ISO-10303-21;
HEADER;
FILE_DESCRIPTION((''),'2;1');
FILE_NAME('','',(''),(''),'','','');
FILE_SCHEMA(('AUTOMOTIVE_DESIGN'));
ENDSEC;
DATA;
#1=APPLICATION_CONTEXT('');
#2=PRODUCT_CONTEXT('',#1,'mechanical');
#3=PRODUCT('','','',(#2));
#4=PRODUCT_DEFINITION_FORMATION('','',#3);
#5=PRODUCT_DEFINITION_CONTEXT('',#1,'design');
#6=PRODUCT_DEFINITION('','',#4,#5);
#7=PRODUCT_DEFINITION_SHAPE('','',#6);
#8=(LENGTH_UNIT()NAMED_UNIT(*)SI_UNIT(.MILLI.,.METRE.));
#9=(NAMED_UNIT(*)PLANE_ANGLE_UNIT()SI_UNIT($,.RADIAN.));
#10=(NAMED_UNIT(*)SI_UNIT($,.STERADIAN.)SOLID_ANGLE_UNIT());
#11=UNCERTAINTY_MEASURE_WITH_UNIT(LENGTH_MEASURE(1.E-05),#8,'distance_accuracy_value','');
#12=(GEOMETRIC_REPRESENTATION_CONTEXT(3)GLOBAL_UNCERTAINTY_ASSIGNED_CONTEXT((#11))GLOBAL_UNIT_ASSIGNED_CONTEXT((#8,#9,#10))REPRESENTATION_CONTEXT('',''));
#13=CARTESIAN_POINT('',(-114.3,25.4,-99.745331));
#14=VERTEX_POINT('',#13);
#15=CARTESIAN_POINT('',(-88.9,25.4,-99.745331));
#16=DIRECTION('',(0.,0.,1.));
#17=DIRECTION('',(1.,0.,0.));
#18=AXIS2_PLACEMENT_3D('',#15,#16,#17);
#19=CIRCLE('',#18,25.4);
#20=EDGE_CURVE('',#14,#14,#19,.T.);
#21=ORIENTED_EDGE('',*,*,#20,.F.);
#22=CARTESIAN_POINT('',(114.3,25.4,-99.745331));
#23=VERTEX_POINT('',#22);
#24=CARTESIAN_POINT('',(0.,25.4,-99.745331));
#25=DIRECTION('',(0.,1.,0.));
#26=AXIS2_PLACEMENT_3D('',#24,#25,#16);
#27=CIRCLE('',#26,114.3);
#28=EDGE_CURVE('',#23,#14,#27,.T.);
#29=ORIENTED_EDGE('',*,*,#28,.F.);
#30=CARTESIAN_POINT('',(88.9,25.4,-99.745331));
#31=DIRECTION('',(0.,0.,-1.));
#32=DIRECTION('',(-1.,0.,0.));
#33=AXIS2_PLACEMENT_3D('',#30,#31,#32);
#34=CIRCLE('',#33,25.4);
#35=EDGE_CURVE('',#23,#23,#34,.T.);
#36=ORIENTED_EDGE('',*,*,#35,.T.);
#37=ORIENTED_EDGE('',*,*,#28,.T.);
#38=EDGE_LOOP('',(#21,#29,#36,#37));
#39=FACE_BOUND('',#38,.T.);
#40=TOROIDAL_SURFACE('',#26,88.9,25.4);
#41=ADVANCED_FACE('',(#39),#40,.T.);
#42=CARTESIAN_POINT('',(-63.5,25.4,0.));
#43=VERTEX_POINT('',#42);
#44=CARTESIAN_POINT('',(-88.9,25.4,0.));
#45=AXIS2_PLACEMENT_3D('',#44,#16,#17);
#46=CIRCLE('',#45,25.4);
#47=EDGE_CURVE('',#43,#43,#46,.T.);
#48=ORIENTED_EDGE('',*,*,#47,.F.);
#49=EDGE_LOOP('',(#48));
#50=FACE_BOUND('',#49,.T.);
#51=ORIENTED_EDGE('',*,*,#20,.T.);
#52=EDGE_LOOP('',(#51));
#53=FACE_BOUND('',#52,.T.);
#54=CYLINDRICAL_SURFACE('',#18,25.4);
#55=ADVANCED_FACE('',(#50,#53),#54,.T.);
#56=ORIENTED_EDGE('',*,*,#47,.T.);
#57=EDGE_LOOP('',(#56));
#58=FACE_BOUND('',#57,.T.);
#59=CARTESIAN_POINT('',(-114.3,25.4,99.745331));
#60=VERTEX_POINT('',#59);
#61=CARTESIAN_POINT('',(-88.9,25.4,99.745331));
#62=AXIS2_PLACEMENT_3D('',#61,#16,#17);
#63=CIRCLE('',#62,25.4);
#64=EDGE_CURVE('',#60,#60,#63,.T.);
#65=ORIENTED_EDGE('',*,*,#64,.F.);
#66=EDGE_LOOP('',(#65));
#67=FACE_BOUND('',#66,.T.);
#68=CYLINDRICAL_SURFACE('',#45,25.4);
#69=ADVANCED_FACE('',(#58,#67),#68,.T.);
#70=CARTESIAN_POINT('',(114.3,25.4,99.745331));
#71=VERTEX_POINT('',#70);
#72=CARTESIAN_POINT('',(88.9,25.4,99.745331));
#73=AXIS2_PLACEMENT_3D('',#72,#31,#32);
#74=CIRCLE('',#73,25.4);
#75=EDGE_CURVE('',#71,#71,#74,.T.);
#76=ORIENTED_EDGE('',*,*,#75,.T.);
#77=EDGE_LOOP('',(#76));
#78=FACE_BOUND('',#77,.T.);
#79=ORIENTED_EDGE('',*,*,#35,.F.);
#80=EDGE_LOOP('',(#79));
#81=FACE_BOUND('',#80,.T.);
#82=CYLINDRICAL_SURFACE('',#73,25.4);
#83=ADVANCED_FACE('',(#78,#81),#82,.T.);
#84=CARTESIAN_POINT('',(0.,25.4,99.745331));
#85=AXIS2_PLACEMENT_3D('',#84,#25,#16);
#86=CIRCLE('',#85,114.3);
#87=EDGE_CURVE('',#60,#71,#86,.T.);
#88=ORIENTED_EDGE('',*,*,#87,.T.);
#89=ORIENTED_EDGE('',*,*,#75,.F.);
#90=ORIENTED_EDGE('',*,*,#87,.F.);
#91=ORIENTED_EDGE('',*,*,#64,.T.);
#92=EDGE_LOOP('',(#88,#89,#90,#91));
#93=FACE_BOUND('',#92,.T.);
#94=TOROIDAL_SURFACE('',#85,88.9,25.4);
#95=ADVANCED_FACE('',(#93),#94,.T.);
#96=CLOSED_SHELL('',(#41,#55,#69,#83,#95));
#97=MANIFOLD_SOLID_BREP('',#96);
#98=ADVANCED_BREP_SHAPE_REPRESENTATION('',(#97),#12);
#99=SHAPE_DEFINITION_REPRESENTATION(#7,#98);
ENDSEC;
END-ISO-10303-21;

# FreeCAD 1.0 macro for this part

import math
import FreeCAD as App
import Part
import Sketcher

V = App.Vector
Q = App.Units.Quantity

doc = App.newDocument("Part")
body = doc.addObject("PartDesign::Body", "Body")

# Sketch on XY plane
sketch1 = body.newObject("Sketcher::SketchObject", "Sketch")
sketch1.AttachmentSupport = (doc.getObject("XY_Plane"), [""])
sketch1.MapMode = "FlatFace"
sketch1.addGeometry(Part.Circle(V(-89, 25, 0), V(0, 0, 1), 25), False)
sketch1.addConstraint([
    Sketcher.Constraint("Diameter", 0, Q("2 in")),
    Sketcher.Constraint("DistanceY", -1, 1, 0, 3, Q("1 in")),
    Sketcher.Constraint("DistanceX", 0, 3, -1, 1, Q("3.5 in")),
])

# Sketch on XZ plane
sketch2 = body.newObject("Sketcher::SketchObject", "Sketch001")
sketch2.AttachmentSupport = (doc.getObject("XZ_Plane"), [""])
sketch2.MapMode = "FlatFace"
sketch2.addGeometry([
    Part.LineSegment(V(-114, 100, 0), V(-114, -100, 0)),
    Part.ArcOfCircle(Part.Circle(V(0, -100, 0), V(0, 0, 1), 114), math.radians(180), math.radians(360)),
    Part.LineSegment(V(114, -100, 0), V(114, 100, 0)),
    Part.ArcOfCircle(Part.Circle(V(0, 100, 0), V(0, 0, 1), 114), math.radians(0), math.radians(180)),
], False)
sketch2.addConstraint([
    Sketcher.Constraint("Tangent", 0, 2, 1, 1),
    Sketcher.Constraint("Tangent", 1, 2, 2, 1),
    Sketcher.Constraint("Tangent", 2, 2, 3, 1),
    Sketcher.Constraint("Tangent", 3, 2, 0, 1),
    Sketcher.Constraint("Vertical", 0),
    Sketcher.Constraint("Vertical", 2),
    Sketcher.Constraint("Symmetric", 1, 3, 3, 3, -1, 1),
    Sketcher.Constraint("Radius", 1, Q("4.5 in")),
    Sketcher.Constraint("DistanceY", 0, 2, 0, 1, Q("199.490662 mm")),
])
doc.recompute()

additivepipe = body.newObject("PartDesign::AdditivePipe", "AdditivePipe")
additivepipe.Profile = sketch1
additivepipe.Spine = (sketch2, ["Edge1", "Edge2", "Edge3", "Edge4"])

doc.recompute()
